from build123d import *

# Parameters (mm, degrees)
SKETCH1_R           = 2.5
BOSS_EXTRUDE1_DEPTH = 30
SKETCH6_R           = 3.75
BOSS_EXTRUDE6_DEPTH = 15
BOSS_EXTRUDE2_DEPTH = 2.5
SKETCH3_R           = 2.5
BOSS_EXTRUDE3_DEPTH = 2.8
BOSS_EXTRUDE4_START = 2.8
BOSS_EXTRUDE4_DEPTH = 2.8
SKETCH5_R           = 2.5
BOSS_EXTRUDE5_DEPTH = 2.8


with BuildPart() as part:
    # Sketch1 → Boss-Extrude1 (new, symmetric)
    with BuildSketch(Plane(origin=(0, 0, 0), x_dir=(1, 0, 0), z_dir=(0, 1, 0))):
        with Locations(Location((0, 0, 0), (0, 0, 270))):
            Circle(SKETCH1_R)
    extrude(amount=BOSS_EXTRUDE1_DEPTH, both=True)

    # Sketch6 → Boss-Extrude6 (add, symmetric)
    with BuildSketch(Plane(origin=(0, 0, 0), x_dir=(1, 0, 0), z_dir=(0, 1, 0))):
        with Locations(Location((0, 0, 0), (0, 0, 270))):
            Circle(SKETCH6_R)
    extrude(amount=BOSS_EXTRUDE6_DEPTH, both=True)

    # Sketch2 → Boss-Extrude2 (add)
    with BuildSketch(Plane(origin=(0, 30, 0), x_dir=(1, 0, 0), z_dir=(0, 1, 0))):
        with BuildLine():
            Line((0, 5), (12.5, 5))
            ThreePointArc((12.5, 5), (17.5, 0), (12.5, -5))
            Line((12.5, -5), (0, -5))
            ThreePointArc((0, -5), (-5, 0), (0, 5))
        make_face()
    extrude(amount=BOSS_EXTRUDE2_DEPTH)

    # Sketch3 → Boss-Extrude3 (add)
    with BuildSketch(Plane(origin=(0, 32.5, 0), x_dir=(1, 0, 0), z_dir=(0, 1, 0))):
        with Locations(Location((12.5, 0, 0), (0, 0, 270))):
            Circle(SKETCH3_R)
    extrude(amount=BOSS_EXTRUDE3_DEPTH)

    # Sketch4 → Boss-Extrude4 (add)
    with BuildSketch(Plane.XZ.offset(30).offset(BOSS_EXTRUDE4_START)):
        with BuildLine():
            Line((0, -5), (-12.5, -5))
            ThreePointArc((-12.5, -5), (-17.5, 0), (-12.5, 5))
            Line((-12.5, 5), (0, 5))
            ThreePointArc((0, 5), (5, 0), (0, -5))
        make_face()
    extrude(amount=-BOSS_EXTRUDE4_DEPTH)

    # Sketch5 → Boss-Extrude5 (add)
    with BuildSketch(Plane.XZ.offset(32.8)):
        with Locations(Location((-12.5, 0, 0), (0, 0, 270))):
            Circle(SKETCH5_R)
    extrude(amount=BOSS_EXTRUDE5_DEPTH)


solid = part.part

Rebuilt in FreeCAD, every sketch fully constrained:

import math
import FreeCAD as App
import Part
import Sketcher

V = App.Vector
Q = App.Units.Quantity

doc = App.newDocument("Part")
body = doc.addObject("PartDesign::Body", "Body")

# Sketch on XZ plane
sketch1 = doc.addObject("Sketcher::SketchObject", "Sketch")
body.addObject(sketch1)
sketch1.AttachmentSupport = (doc.XZ_Plane, [""])
sketch1.MapMode = "FlatFace"
sketch1.addGeometry(Part.Circle(V(0, 0, 0), V(0, 0, 1), 2.5), False)
sketch1.addConstraint(Sketcher.Constraint("Coincident", 0, 3, -1, 1))
sketch1.addConstraint(Sketcher.Constraint("Diameter", 0, Q("5 mm")))
pad1 = doc.addObject("PartDesign::Pad", "Pad")
body.addObject(pad1)
pad1.Profile = sketch1
pad1.Length = 60
pad1.Midplane = True

# Sketch on XZ plane
sketch2 = doc.addObject("Sketcher::SketchObject", "Sketch001")
body.addObject(sketch2)
sketch2.AttachmentSupport = (doc.XZ_Plane, [""])
sketch2.MapMode = "FlatFace"
sketch2.addGeometry(Part.Circle(V(0, 0, 0), V(0, 0, 1), 3.8), False)
sketch2.addConstraint(Sketcher.Constraint("Coincident", 0, 3, -1, 1))
sketch2.addConstraint(Sketcher.Constraint("Diameter", 0, Q("7.5 mm")))
pad2 = doc.addObject("PartDesign::Pad", "Pad001")
body.addObject(pad2)
pad2.Profile = sketch2
pad2.Length = 30
pad2.Midplane = True

# Sketch on XZ plane
sketch3 = doc.addObject("Sketcher::SketchObject", "Sketch002")
body.addObject(sketch3)
sketch3.AttachmentSupport = (doc.XZ_Plane, [""])
sketch3.MapMode = "FlatFace"
sketch3.AttachmentOffset = App.Placement(V(0, 0, -30), App.Rotation())
sketch3.addGeometry(Part.LineSegment(V(12, -5, 0), V(0, -5, 0)), False)
sketch3.addGeometry(Part.ArcOfCircle(Part.Circle(V(0, 0, 0), V(0, 0, 1), 5), math.radians(90), math.radians(270)), False)
sketch3.addGeometry(Part.LineSegment(V(0, 5, 0), V(12, 5, 0)), False)
sketch3.addGeometry(Part.ArcOfCircle(Part.Circle(V(12, 0, 0), V(0, 0, 1), 5), math.radians(-90), math.radians(90)), False)
sketch3.addConstraint(Sketcher.Constraint("Tangent", 0, 2, 1, 2))
sketch3.addConstraint(Sketcher.Constraint("Tangent", 1, 1, 2, 1))
sketch3.addConstraint(Sketcher.Constraint("Tangent", 2, 2, 3, 2))
sketch3.addConstraint(Sketcher.Constraint("Tangent", 3, 1, 0, 1))
sketch3.addConstraint(Sketcher.Constraint("Horizontal", 0))
sketch3.addConstraint(Sketcher.Constraint("Horizontal", 2))
sketch3.addConstraint(Sketcher.Constraint("Coincident", 1, 3, -1, 1))
sketch3.addConstraint(Sketcher.Constraint("Radius", 1, Q("5 mm")))
sketch3.addConstraint(Sketcher.Constraint("DistanceX", 0, 2, 0, 1, Q("12.5 mm")))
pad3 = doc.addObject("PartDesign::Pad", "Pad002")
body.addObject(pad3)
pad3.Profile = sketch3
pad3.Length = 2.5
pad3.Reversed = True

# Sketch on XZ plane
sketch4 = doc.addObject("Sketcher::SketchObject", "Sketch003")
body.addObject(sketch4)
sketch4.AttachmentSupport = (doc.XZ_Plane, [""])
sketch4.MapMode = "FlatFace"
sketch4.AttachmentOffset = App.Placement(V(0, 0, -32.5), App.Rotation())
sketch4.addGeometry(Part.Circle(V(12.5, 0, 0), V(0, 0, 1), 2.5), False)
sketch4.addConstraint(Sketcher.Constraint("PointOnObject", 0, 3, -1))
sketch4.addConstraint(Sketcher.Constraint("Diameter", 0, Q("5 mm")))
sketch4.addConstraint(Sketcher.Constraint("DistanceX", -1, 1, 0, 3, Q("12.5 mm")))
pad4 = doc.addObject("PartDesign::Pad", "Pad003")
body.addObject(pad4)
pad4.Profile = sketch4
pad4.Length = 2.8
pad4.Reversed = True

# Sketch on XZ plane
sketch5 = doc.addObject("Sketcher::SketchObject", "Sketch004")
body.addObject(sketch5)
sketch5.AttachmentSupport = (doc.XZ_Plane, [""])
sketch5.MapMode = "FlatFace"
sketch5.AttachmentOffset = App.Placement(V(0, 0, 32.8), App.Rotation())
sketch5.addGeometry(Part.LineSegment(V(-12, -5, 0), V(0, -5, 0)), False)
sketch5.addGeometry(Part.ArcOfCircle(Part.Circle(V(0, 0, 0), V(0, 0, 1), 5), math.radians(-90), math.radians(90)), False)
sketch5.addGeometry(Part.LineSegment(V(0, 5, 0), V(-12, 5, 0)), False)
sketch5.addGeometry(Part.ArcOfCircle(Part.Circle(V(-12, 0, 0), V(0, 0, 1), 5), math.radians(90), math.radians(270)), False)
sketch5.addConstraint(Sketcher.Constraint("Tangent", 0, 2, 1, 1))
sketch5.addConstraint(Sketcher.Constraint("Tangent", 1, 2, 2, 1))
sketch5.addConstraint(Sketcher.Constraint("Tangent", 2, 2, 3, 1))
sketch5.addConstraint(Sketcher.Constraint("Tangent", 3, 2, 0, 1))
sketch5.addConstraint(Sketcher.Constraint("Horizontal", 0))
sketch5.addConstraint(Sketcher.Constraint("Horizontal", 2))
sketch5.addConstraint(Sketcher.Constraint("Coincident", 1, 3, -1, 1))
sketch5.addConstraint(Sketcher.Constraint("Radius", 1, Q("5 mm")))
sketch5.addConstraint(Sketcher.Constraint("DistanceX", 0, 1, 0, 2, Q("12.5 mm")))
pad5 = doc.addObject("PartDesign::Pad", "Pad004")
body.addObject(pad5)
pad5.Profile = sketch5
pad5.Length = 2.8
pad5.Reversed = True

# Sketch on XZ plane
sketch6 = doc.addObject("Sketcher::SketchObject", "Sketch005")
body.addObject(sketch6)
sketch6.AttachmentSupport = (doc.XZ_Plane, [""])
sketch6.MapMode = "FlatFace"
sketch6.AttachmentOffset = App.Placement(V(0, 0, 32.8), App.Rotation())
sketch6.addGeometry(Part.Circle(V(-12.5, 0, 0), V(0, 0, 1), 2.5), False)
sketch6.addConstraint(Sketcher.Constraint("PointOnObject", 0, 3, -1))
sketch6.addConstraint(Sketcher.Constraint("Diameter", 0, Q("5 mm")))
sketch6.addConstraint(Sketcher.Constraint("DistanceX", 0, 3, -1, 1, Q("12.5 mm")))
pad6 = doc.addObject("PartDesign::Pad", "Pad005")
body.addObject(pad6)
pad6.Profile = sketch6
pad6.Length = 2.8

doc.recompute()
